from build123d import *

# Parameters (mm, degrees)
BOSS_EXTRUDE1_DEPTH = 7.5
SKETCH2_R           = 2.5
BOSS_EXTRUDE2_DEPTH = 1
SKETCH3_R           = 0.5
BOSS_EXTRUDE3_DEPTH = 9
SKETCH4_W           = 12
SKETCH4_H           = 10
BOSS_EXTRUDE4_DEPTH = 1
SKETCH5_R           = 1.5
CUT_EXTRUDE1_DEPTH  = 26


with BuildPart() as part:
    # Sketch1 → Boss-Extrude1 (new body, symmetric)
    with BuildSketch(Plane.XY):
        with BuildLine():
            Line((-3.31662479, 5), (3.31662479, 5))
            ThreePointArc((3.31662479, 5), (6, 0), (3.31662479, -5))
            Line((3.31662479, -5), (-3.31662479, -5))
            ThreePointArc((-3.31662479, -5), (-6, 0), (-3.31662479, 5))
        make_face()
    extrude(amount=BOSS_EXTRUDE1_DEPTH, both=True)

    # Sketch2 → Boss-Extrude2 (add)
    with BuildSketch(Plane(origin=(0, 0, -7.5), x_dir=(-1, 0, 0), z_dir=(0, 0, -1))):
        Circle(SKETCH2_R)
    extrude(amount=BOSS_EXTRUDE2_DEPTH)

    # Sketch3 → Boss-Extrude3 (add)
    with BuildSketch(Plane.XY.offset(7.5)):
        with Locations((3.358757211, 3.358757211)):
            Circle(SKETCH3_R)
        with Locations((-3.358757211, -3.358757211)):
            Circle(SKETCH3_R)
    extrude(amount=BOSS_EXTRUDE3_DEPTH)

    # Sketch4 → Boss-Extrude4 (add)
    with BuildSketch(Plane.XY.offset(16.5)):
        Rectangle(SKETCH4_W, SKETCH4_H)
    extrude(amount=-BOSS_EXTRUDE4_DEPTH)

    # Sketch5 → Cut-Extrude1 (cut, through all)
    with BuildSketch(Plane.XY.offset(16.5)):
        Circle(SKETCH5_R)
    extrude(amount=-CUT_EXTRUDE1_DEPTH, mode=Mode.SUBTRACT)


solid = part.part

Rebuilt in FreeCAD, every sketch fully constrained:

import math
import FreeCAD as App
import Part
import Sketcher

V = App.Vector

doc = App.newDocument("Part")
body = doc.addObject("PartDesign::Body", "Body")

# Sketch on XY plane
sketch1 = body.newObject("Sketcher::SketchObject", "Sketch")
sketch1.AttachmentSupport = (doc.getObject("XY_Plane"), [""])
sketch1.MapMode = "FlatFace"
sketch1.addGeometry(Part.LineSegment(V(3, 5, 0), V(-3, 5, 0)), False)
sketch1.addGeometry(Part.ArcOfCircle(Part.Circle(V(0, 0, 0), V(0, 0, 1), 6), math.radians(124), math.radians(236)), False)
sketch1.addGeometry(Part.LineSegment(V(-3, -5, 0), V(3, -5, 0)), False)
sketch1.addGeometry(Part.ArcOfCircle(Part.Circle(V(0, 0, 0), V(0, 0, 1), 6), math.radians(-56), math.radians(56)), False)
sketch1.addConstraint(Sketcher.Constraint("Coincident", 0, 2, 1, 1))
sketch1.addConstraint(Sketcher.Constraint("Coincident", 1, 2, 2, 1))
sketch1.addConstraint(Sketcher.Constraint("Coincident", 2, 2, 3, 1))
sketch1.addConstraint(Sketcher.Constraint("Coincident", 3, 2, 0, 1))
sketch1.addConstraint(Sketcher.Constraint("Horizontal", 0))
sketch1.addConstraint(Sketcher.Constraint("Horizontal", 2))
sketch1.addConstraint(Sketcher.Constraint("Coincident", 1, 3, -1, 1))
sketch1.addConstraint(Sketcher.Constraint("Coincident", 3, 3, -1, 1))
sketch1.addConstraint(Sketcher.Constraint("Equal", 1, 3))
sketch1.addConstraint(Sketcher.Constraint("Vertical", 0, 2, 1, 2))
sketch1.addConstraint(Sketcher.Constraint("Radius", 1, 6.0))
sketch1.addConstraint(Sketcher.Constraint("DistanceY", -1, 1, 0, 2, 5.0))
pad1 = body.newObject("PartDesign::Pad", "Pad")
pad1.Profile = sketch1
pad1.Length = 15
pad1.Midplane = True

# Sketch on XY plane
sketch2 = body.newObject("Sketcher::SketchObject", "Sketch001")
sketch2.AttachmentSupport = (doc.getObject("XY_Plane"), [""])
sketch2.MapMode = "FlatFace"
sketch2.AttachmentOffset = App.Placement(V(0, 0, -7.5), App.Rotation())
sketch2.addGeometry(Part.Circle(V(0, 0, 0), V(0, 0, 1), 2.5), False)
sketch2.addConstraint(Sketcher.Constraint("Coincident", 0, 3, -1, 1))
sketch2.addConstraint(Sketcher.Constraint("Diameter", 0, 5.0))
pad2 = body.newObject("PartDesign::Pad", "Pad001")
pad2.Profile = sketch2
pad2.Length = 1
pad2.Reversed = True

# Sketch on XY plane
sketch3 = body.newObject("Sketcher::SketchObject", "Sketch002")
sketch3.AttachmentSupport = (doc.getObject("XY_Plane"), [""])
sketch3.MapMode = "FlatFace"
sketch3.AttachmentOffset = App.Placement(V(0, 0, 7.5), App.Rotation())
sketch3.addGeometry(Part.Circle(V(3.4, 3.4, 0), V(0, 0, 1), 0.5), False)
sketch3.addGeometry(Part.Circle(V(-3.4, -3.4, 0), V(0, 0, 1), 0.5), False)
sketch3.addConstraint(Sketcher.Constraint("Equal", 0, 1))
sketch3.addConstraint(Sketcher.Constraint("Symmetric", 0, 3, 1, 3, -1, 1))
sketch3.addConstraint(Sketcher.Constraint("Diameter", 0, 1.0))
sketch3.addConstraint(Sketcher.Constraint("DistanceX", -1, 1, 0, 3, 3.358757))
sketch3.addConstraint(Sketcher.Constraint("DistanceY", -1, 1, 0, 3, 3.358757))
pad3 = body.newObject("PartDesign::Pad", "Pad002")
pad3.Profile = sketch3
pad3.Length = 9

# Sketch on XY plane
sketch4 = body.newObject("Sketcher::SketchObject", "Sketch003")
sketch4.AttachmentSupport = (doc.getObject("XY_Plane"), [""])
sketch4.MapMode = "FlatFace"
sketch4.AttachmentOffset = App.Placement(V(0, 0, 16.5), App.Rotation())
sketch4.addGeometry(Part.LineSegment(V(-6, 5, 0), V(-6, -5, 0)), False)
sketch4.addGeometry(Part.LineSegment(V(-6, -5, 0), V(6, -5, 0)), False)
sketch4.addGeometry(Part.LineSegment(V(6, -5, 0), V(6, 5, 0)), False)
sketch4.addGeometry(Part.LineSegment(V(6, 5, 0), V(-6, 5, 0)), False)
sketch4.addConstraint(Sketcher.Constraint("Coincident", 0, 2, 1, 1))
sketch4.addConstraint(Sketcher.Constraint("Coincident", 1, 2, 2, 1))
sketch4.addConstraint(Sketcher.Constraint("Coincident", 2, 2, 3, 1))
sketch4.addConstraint(Sketcher.Constraint("Coincident", 3, 2, 0, 1))
sketch4.addConstraint(Sketcher.Constraint("Vertical", 0))
sketch4.addConstraint(Sketcher.Constraint("Horizontal", 1))
sketch4.addConstraint(Sketcher.Constraint("Vertical", 2))
sketch4.addConstraint(Sketcher.Constraint("Horizontal", 3))
sketch4.addConstraint(Sketcher.Constraint("Symmetric", 0, 2, 2, 2, -1, 1))
sketch4.addConstraint(Sketcher.Constraint("DistanceX", 1, 1, 1, 2, 12.0))
sketch4.addConstraint(Sketcher.Constraint("DistanceY", 0, 2, 0, 1, 10.0))
pad4 = body.newObject("PartDesign::Pad", "Pad003")
pad4.Profile = sketch4
pad4.Length = 1
pad4.Reversed = True

# Sketch on XY plane
sketch5 = body.newObject("Sketcher::SketchObject", "Sketch004")
sketch5.AttachmentSupport = (doc.getObject("XY_Plane"), [""])
sketch5.MapMode = "FlatFace"
sketch5.AttachmentOffset = App.Placement(V(0, 0, 16.5), App.Rotation())
sketch5.addGeometry(Part.Circle(V(0, 0, 0), V(0, 0, 1), 1.5), False)
sketch5.addConstraint(Sketcher.Constraint("Coincident", 0, 3, -1, 1))
sketch5.addConstraint(Sketcher.Constraint("Diameter", 0, 3.0))
pocket1 = body.newObject("PartDesign::Pocket", "Pocket")
pocket1.Profile = sketch5
pocket1.Type = "ThroughAll"

doc.recompute()
